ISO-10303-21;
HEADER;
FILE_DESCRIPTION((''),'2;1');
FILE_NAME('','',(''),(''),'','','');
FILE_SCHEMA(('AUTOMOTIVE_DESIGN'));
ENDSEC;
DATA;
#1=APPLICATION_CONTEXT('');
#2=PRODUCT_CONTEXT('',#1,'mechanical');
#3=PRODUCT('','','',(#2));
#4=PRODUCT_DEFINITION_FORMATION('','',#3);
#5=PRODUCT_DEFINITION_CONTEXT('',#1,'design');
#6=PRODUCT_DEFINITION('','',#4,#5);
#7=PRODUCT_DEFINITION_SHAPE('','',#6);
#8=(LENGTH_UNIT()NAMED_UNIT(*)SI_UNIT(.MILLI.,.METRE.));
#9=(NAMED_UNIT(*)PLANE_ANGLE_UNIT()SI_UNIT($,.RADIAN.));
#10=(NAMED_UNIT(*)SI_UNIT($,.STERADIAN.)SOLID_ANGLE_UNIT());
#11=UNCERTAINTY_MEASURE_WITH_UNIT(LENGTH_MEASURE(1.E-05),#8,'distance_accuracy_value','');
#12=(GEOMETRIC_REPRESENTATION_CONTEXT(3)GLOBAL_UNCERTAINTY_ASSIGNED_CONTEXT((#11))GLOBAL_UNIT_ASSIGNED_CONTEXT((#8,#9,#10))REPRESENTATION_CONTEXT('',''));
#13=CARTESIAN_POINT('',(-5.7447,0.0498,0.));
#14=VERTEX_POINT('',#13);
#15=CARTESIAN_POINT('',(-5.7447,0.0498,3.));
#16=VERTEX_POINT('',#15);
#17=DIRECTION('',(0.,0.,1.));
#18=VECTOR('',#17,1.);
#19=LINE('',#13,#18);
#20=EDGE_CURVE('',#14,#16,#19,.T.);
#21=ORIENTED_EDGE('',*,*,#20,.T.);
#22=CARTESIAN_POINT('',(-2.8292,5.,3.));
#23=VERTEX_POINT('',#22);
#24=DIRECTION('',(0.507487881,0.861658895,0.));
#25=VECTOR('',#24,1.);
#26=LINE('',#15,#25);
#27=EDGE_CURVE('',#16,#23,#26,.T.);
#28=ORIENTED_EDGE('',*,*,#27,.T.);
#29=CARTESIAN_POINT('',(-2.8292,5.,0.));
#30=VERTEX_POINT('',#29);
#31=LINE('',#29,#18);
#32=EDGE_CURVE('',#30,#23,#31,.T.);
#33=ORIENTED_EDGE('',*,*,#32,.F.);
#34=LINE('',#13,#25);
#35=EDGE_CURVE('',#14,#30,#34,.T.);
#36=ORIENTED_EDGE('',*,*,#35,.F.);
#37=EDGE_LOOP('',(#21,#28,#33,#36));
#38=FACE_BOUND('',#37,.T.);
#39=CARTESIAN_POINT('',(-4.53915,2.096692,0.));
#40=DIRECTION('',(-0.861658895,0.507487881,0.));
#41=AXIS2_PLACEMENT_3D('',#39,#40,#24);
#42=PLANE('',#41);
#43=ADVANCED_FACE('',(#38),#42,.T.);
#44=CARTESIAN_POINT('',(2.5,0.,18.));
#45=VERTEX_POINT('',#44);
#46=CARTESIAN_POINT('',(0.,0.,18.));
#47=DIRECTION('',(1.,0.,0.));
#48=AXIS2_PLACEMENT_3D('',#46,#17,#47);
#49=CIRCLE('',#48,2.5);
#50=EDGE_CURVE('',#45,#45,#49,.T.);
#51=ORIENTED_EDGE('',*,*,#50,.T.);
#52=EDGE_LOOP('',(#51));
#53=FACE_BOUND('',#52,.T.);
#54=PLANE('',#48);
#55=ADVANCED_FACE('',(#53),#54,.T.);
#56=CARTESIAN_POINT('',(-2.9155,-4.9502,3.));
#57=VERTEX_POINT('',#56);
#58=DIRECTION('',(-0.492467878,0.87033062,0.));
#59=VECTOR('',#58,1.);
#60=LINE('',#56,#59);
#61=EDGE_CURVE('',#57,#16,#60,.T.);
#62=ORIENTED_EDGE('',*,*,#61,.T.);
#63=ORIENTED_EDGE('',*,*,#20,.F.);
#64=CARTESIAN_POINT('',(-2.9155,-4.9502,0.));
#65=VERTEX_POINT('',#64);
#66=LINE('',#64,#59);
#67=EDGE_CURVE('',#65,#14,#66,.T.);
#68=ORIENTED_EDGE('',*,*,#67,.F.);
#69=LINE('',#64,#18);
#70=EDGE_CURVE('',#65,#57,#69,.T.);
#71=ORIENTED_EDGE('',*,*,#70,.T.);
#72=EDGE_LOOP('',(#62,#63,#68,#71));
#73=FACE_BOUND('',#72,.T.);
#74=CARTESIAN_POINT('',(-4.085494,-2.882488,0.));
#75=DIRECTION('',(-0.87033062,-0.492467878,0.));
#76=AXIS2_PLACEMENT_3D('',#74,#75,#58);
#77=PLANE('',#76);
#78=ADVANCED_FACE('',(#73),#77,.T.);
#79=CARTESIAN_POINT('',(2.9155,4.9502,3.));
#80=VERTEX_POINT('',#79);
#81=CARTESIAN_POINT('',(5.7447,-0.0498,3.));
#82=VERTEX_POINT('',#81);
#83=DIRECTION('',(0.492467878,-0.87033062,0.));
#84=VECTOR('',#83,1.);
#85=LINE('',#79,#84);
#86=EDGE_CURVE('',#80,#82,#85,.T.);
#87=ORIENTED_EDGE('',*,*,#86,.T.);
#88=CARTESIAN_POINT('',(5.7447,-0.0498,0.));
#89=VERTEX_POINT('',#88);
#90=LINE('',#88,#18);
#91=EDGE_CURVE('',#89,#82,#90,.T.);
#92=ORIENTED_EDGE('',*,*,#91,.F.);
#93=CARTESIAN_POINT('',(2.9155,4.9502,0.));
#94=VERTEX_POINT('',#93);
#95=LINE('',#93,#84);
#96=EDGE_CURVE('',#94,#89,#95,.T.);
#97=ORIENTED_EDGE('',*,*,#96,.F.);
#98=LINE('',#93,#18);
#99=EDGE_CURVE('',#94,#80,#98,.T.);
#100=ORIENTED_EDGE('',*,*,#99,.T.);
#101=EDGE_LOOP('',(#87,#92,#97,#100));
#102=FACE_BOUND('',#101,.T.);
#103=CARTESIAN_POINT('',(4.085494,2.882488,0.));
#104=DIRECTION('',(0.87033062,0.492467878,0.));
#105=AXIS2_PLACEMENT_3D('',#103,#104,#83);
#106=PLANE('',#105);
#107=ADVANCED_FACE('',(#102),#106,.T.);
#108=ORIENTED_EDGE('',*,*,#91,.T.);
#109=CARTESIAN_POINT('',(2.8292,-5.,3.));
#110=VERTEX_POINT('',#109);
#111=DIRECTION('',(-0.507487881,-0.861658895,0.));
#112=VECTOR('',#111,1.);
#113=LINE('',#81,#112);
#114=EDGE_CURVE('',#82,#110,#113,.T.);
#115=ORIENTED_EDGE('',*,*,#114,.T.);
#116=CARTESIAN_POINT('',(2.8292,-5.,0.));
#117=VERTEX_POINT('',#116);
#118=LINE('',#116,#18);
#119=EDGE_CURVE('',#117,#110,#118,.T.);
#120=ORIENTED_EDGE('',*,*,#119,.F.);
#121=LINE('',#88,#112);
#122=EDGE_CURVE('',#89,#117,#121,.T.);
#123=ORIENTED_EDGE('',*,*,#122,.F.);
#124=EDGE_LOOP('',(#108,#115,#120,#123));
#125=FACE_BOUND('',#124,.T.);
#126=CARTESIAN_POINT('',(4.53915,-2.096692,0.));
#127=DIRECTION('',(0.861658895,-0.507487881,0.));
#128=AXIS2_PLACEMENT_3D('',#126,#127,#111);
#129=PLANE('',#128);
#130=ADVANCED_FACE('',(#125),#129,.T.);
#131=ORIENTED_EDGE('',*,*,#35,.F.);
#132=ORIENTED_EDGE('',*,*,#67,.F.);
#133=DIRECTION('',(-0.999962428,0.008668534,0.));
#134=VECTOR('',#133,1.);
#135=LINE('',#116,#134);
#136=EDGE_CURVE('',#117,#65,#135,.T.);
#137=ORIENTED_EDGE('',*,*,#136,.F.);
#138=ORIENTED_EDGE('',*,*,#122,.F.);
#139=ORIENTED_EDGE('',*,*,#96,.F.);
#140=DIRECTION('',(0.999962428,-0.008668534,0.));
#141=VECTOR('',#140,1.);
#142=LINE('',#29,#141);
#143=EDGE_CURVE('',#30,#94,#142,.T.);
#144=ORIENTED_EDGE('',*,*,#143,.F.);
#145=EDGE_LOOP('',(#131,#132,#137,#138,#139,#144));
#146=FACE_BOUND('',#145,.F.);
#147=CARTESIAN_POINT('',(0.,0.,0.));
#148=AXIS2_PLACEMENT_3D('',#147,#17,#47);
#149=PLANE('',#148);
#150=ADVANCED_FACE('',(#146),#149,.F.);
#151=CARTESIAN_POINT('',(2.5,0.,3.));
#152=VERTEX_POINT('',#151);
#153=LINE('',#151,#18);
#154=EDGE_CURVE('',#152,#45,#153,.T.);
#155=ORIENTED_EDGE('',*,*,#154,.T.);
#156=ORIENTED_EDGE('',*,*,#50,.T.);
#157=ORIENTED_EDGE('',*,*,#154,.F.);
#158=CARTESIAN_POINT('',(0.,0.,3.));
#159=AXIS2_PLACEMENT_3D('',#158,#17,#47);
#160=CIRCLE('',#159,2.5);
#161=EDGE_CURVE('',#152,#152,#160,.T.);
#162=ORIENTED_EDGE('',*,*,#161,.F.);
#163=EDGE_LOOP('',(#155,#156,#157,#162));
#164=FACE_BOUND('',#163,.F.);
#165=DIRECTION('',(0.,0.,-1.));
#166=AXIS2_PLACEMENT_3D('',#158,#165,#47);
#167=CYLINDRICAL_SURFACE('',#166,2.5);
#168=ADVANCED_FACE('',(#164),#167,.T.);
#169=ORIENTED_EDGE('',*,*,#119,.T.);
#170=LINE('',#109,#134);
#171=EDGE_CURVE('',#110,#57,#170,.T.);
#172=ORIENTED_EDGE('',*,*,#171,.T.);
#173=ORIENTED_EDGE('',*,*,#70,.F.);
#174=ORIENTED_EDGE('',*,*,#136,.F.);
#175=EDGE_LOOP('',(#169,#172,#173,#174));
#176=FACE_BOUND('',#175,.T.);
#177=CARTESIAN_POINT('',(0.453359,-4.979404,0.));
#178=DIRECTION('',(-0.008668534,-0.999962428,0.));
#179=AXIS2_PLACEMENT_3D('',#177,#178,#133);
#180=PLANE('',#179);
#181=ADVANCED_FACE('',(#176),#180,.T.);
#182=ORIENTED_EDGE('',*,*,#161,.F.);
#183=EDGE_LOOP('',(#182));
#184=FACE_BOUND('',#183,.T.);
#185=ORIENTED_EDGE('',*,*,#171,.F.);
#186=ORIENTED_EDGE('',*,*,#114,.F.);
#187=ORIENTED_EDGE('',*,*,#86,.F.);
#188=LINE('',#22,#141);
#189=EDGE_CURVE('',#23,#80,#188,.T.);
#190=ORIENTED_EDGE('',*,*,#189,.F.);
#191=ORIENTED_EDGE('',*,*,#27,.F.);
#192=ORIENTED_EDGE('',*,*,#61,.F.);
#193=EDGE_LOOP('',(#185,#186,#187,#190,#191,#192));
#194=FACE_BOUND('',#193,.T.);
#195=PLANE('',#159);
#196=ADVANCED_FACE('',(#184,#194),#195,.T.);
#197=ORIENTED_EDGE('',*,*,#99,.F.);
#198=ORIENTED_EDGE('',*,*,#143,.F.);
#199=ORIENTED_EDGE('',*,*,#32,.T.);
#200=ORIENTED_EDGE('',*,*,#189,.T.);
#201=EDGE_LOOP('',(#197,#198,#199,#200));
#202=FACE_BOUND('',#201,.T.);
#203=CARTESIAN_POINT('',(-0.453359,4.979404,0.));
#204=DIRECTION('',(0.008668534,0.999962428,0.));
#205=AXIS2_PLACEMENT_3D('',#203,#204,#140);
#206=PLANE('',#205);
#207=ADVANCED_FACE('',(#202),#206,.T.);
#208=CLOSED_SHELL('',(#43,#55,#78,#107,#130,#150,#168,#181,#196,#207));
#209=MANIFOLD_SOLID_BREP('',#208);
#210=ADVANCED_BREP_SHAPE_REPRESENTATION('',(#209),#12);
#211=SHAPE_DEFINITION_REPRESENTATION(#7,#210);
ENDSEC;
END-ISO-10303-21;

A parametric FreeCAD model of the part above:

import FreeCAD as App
import Part
import Sketcher

V = App.Vector
Q = App.Units.Quantity

doc = App.newDocument("Part")
body = doc.addObject("PartDesign::Body", "Body")

# Sketch on XY plane
sketch1 = doc.addObject("Sketcher::SketchObject", "Sketch")
body.addObject(sketch1)
sketch1.AttachmentSupport = (doc.XY_Plane, [""])
sketch1.MapMode = "FlatFace"
sketch1.addGeometry(Part.LineSegment(V(5.7447, -0.0498, 0), V(2.9155, 4.9502, 0)), False)
sketch1.addGeometry(Part.LineSegment(V(2.9155, 4.9502, 0), V(-2.8292, 5, 0)), False)
sketch1.addGeometry(Part.LineSegment(V(-2.8292, 5, 0), V(-5.7447, 0.0498, 0)), False)
sketch1.addGeometry(Part.LineSegment(V(-5.7447, 0.0498, 0), V(-2.9155, -4.9502, 0)), False)
sketch1.addGeometry(Part.LineSegment(V(-2.9155, -4.9502, 0), V(2.8292, -5, 0)), False)
sketch1.addGeometry(Part.LineSegment(V(2.8292, -5, 0), V(5.7447, -0.0498, 0)), False)
sketch1.addConstraint(Sketcher.Constraint("Coincident", 0, 2, 1, 1))
sketch1.addConstraint(Sketcher.Constraint("Coincident", 1, 2, 2, 1))
sketch1.addConstraint(Sketcher.Constraint("Coincident", 2, 2, 3, 1))
sketch1.addConstraint(Sketcher.Constraint("Coincident", 3, 2, 4, 1))
sketch1.addConstraint(Sketcher.Constraint("Coincident", 4, 2, 5, 1))
sketch1.addConstraint(Sketcher.Constraint("Coincident", 5, 2, 0, 1))
sketch1.addConstraint(Sketcher.Constraint("Symmetric", 0, 2, 3, 2, -1, 1))
sketch1.addConstraint(Sketcher.Constraint("Symmetric", 1, 2, 4, 2, -1, 1))
sketch1.addConstraint(Sketcher.Constraint("Symmetric", 2, 2, 5, 2, -1, 1))
sketch1.addConstraint(Sketcher.Constraint("Equal", 0, 1))
sketch1.addConstraint(Sketcher.Constraint("Equal", 1, 2))
sketch1.addConstraint(Sketcher.Constraint("DistanceY", -1, 1, 1, 2, Q("5 mm")))
sketch1.addConstraint(Sketcher.Constraint("DistanceY", 3, 2, 2, 2, Q("5 mm")))
sketch1.addConstraint(Sketcher.Constraint("Distance", 0, Q("5.745 mm")))
sketch1.addConstraint(Sketcher.Constraint("DistanceX", 3, 2, 0, 2, Q("5.831 mm")))
pad1 = doc.addObject("PartDesign::Pad", "Pad")
body.addObject(pad1)
pad1.Profile = sketch1
pad1.Length = 3

# Sketch on XY plane
sketch2 = doc.addObject("Sketcher::SketchObject", "Sketch001")
body.addObject(sketch2)
sketch2.AttachmentSupport = (doc.XY_Plane, [""])
sketch2.MapMode = "FlatFace"
sketch2.AttachmentOffset = App.Placement(V(0, 0, 3), App.Rotation())
sketch2.addGeometry(Part.Circle(V(0, 0, 0), V(0, 0, 1), 2.5), False)
sketch2.addConstraint(Sketcher.Constraint("Coincident", 0, 3, -1, 1))
sketch2.addConstraint(Sketcher.Constraint("Diameter", 0, Q("5 mm")))
pad2 = doc.addObject("PartDesign::Pad", "Pad001")
body.addObject(pad2)
pad2.Profile = sketch2
pad2.Length = 15

doc.recompute()
